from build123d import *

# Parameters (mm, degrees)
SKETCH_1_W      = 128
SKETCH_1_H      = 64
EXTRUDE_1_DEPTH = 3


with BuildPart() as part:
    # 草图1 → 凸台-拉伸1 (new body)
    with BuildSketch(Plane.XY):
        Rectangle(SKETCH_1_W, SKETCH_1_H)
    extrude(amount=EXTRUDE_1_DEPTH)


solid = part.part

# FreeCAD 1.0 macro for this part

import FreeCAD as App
import Part
import Sketcher
Q = App.Units.Quantity

doc = App.newDocument("Part")
params = doc.addObject("Spreadsheet::Sheet", "Params")
for row, (alias, value) in enumerate([
    ("sketch1_width", "128 mm"),
    ("sketch1_height", "64 mm"),
    ("pad1_length", "3 mm"),
], start=1):
    params.set(f"A{row}", alias)
    params.set(f"B{row}", "=" + value)
    params.setAlias(f"B{row}", alias)

body = doc.addObject("PartDesign::Body", "Body")

sketch1 = body.newObject("Sketcher::SketchObject", "Sketch")
sketch1.AttachmentSupport = (doc.getObject("XY_Plane"), [""])
sketch1.MapMode = "FlatFace"
sketch1.addGeometry([
    Part.LineSegment(App.Vector(-64, 32, 0), App.Vector(-64, -32, 0)),
    Part.LineSegment(App.Vector(-64, -32, 0), App.Vector(64, -32, 0)),
    Part.LineSegment(App.Vector(64, -32, 0), App.Vector(64, 32, 0)),
    Part.LineSegment(App.Vector(64, 32, 0), App.Vector(-64, 32, 0)),
], False)
sketch1.addConstraint([
    Sketcher.Constraint("Coincident", 0, 2, 1, 1),
    Sketcher.Constraint("Coincident", 1, 2, 2, 1),
    Sketcher.Constraint("Coincident", 2, 2, 3, 1),
    Sketcher.Constraint("Coincident", 3, 2, 0, 1),
    Sketcher.Constraint("Vertical", 0),
    Sketcher.Constraint("Horizontal", 1),
    Sketcher.Constraint("Vertical", 2),
    Sketcher.Constraint("Horizontal", 3),
    Sketcher.Constraint("Symmetric", 0, 2, 2, 2, -1, 1),
    Sketcher.Constraint("DistanceX", 1, 1, 1, 2, Q("128 mm")),
    Sketcher.Constraint("DistanceY", 0, 2, 0, 1, Q("64 mm")),
])
sketch1.setExpression("Constraints[9]", "Params.sketch1_width")
sketch1.setExpression("Constraints[10]", "Params.sketch1_height")
pad1 = body.newObject("PartDesign::Pad", "Pad")
pad1.Profile = sketch1
pad1.setExpression("Length", "Params.pad1_length")

doc.recompute()
